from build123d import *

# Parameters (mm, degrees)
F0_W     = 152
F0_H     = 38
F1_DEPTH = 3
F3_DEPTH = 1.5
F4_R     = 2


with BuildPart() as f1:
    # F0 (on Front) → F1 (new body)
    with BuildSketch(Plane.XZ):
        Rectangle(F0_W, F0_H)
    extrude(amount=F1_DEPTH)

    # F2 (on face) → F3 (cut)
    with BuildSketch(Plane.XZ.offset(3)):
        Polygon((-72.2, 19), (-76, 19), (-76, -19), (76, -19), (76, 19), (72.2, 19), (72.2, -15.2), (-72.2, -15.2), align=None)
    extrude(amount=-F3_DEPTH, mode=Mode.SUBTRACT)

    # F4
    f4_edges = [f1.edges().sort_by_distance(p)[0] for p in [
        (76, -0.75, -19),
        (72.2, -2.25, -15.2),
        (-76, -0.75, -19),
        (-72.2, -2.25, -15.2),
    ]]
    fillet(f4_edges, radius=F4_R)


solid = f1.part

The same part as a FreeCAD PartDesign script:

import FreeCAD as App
import Part
import Sketcher
from FreeCAD import Vector


def edges_at(feature, points):
    """Names of the edges that pass closest to the given points."""
    edges = feature.Shape.Edges
    near = lambda p: min(range(len(edges)), key=lambda i: edges[i].distToShape(Part.Vertex(*p))[0])
    return sorted({f"Edge{near(p) + 1}" for p in points})


def add_polygon(sketch, points):
    """Adds a closed chain of lines whose ends are joined by coincident constraints."""
    first, n = sketch.GeometryCount, len(points)
    for a, b in zip(points, points[1:] + points[:1]):
        sketch.addGeometry(Part.LineSegment(App.Vector(*a, 0), App.Vector(*b, 0)), False)
    for i in range(n):
        sketch.addConstraint(Sketcher.Constraint("Coincident", first + i, 2, first + (i + 1) % n, 1))

doc = App.newDocument("Part")
params = doc.addObject("Spreadsheet::Sheet", "Params")
for row, (alias, value) in enumerate([
    ("sketch1_width", "152 mm"),
    ("sketch1_height", "38 mm"),
    ("pad1_length", "3 mm"),
    ("sketch2_width", "152 mm"),
    ("sketch2_height", "38 mm"),
    ("sketch2_width2", "3.8 mm"),
    ("sketch2_height2", "34.2 mm"),
    ("pocket1_length", "1.5 mm"),
    ("fillet_radius", "2 mm"),
], start=1):
    params.set(f"A{row}", alias)
    params.set(f"B{row}", "=" + value)
    params.setAlias(f"B{row}", alias)

body = doc.addObject("PartDesign::Body", "Body")

# Sketch on XZ plane
sketch1 = doc.addObject("Sketcher::SketchObject", "Sketch")
body.addObject(sketch1)
sketch1.AttachmentSupport = (doc.XZ_Plane, [""])
sketch1.MapMode = "FlatFace"
add_polygon(sketch1, [(-76, 19), (-76, -19), (76, -19), (76, 19)])  # lines 0-3
sketch1.addConstraint([
    Sketcher.Constraint("Vertical", 0),
    Sketcher.Constraint("Horizontal", 1),
    Sketcher.Constraint("Vertical", 2),
    Sketcher.Constraint("Horizontal", 3),
    Sketcher.Constraint("Symmetric", 0, 2, 2, 2, -1, 1),
    Sketcher.Constraint("DistanceX", 1, 1, 1, 2, 152.0),
    Sketcher.Constraint("DistanceY", 0, 2, 0, 1, 38.0),
])
sketch1.setExpression("Constraints[9]", "Params.sketch1_width")
sketch1.setExpression("Constraints[10]", "Params.sketch1_height")
pad1 = doc.addObject("PartDesign::Pad", "Pad")
body.addObject(pad1)
pad1.Profile = sketch1
pad1.setExpression("Length", "Params.pad1_length")

# Sketch on XZ plane
sketch2 = doc.addObject("Sketcher::SketchObject", "Sketch001")
body.addObject(sketch2)
sketch2.AttachmentSupport = (doc.XZ_Plane, [""])
sketch2.MapMode = "FlatFace"
sketch2.AttachmentOffset = App.Placement(Vector(0, 0, 3), App.Rotation())
add_polygon(sketch2, [(-72.2, 19), (-76, 19), (-76, -19), (76, -19), (76, 19), (72.2, 19), (72.2, -15.2), (-72.2, -15.2)])  # lines 0-7
sketch2.addConstraint([
    Sketcher.Constraint("Horizontal", 0),
    Sketcher.Constraint("Vertical", 1),
    Sketcher.Constraint("Horizontal", 2),
    Sketcher.Constraint("Vertical", 3),
    Sketcher.Constraint("Horizontal", 4),
    Sketcher.Constraint("Vertical", 5),
    Sketcher.Constraint("Horizontal", 6),
    Sketcher.Constraint("Vertical", 7),
    Sketcher.Constraint("Symmetric", 0, 2, 2, 2, -1, 1),
    Sketcher.Constraint("Symmetric", 4, 2, 7, 2, -2),
    Sketcher.Constraint("DistanceX", 2, 1, 2, 2, 152.0),
    Sketcher.Constraint("DistanceY", 1, 2, 1, 1, 38.0),
    Sketcher.Constraint("DistanceX", 0, 2, 0, 1, 3.8),
    Sketcher.Constraint("DistanceY", 5, 2, 5, 1, 34.2),
])
sketch2.setExpression("Constraints[18]", "Params.sketch2_width")
sketch2.setExpression("Constraints[19]", "Params.sketch2_height")
sketch2.setExpression("Constraints[20]", "Params.sketch2_width2")
sketch2.setExpression("Constraints[21]", "Params.sketch2_height2")
pocket1 = doc.addObject("PartDesign::Pocket", "Pocket")
body.addObject(pocket1)
pocket1.Profile = sketch2
pocket1.setExpression("Length", "Params.pocket1_length")
doc.recompute()

fillet = doc.addObject("PartDesign::Fillet", "Fillet")
body.addObject(fillet)
fillet.Base = (pocket1, edges_at(pocket1, [
    (76, -0.75, -19),
    (72.2, -2.25, -15.2),
    (-76, -0.75, -19),
    (-72.2, -2.25, -15.2),
]))
fillet.setExpression("Radius", "Params.fillet_radius")

doc.recompute()
